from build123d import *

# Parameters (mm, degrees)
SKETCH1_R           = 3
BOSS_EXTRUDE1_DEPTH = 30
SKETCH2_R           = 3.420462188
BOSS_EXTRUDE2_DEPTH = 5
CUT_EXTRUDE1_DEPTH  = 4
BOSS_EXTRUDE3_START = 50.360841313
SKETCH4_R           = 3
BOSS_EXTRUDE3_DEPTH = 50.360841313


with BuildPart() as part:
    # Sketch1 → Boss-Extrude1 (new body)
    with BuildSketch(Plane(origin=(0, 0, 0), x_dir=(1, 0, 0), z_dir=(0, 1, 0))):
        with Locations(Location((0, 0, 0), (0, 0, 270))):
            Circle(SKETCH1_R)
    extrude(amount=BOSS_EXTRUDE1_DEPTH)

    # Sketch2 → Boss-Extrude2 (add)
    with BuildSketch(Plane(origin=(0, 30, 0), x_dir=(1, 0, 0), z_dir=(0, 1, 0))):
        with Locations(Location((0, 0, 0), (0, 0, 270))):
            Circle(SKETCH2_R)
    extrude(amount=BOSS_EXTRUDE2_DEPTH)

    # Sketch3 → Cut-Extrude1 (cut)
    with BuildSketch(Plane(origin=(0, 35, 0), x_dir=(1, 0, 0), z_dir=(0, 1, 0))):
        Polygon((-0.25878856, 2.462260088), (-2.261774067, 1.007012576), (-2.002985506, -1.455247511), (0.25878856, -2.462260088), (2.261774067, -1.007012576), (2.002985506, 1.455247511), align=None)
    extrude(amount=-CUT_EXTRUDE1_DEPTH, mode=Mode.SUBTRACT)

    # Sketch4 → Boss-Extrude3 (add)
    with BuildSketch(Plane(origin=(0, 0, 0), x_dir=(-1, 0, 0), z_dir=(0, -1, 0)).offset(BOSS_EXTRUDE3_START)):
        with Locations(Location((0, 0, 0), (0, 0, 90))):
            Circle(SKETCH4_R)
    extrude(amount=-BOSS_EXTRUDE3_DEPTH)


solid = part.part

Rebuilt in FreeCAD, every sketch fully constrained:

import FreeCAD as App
import Part
import Sketcher


def add_polygon(sketch, points):
    """Adds a closed chain of lines whose ends are joined by coincident constraints."""
    first, n = sketch.GeometryCount, len(points)
    for a, b in zip(points, points[1:] + points[:1]):
        sketch.addGeometry(Part.LineSegment(App.Vector(*a, 0), App.Vector(*b, 0)), False)
    for i in range(n):
        sketch.addConstraint(Sketcher.Constraint("Coincident", first + i, 2, first + (i + 1) % n, 1))

doc = App.newDocument("Part")
body = doc.addObject("PartDesign::Body", "Body")

# Sketch on XZ plane
sketch1 = body.newObject("Sketcher::SketchObject", "Sketch")
sketch1.AttachmentSupport = (doc.getObject("XZ_Plane"), [""])
sketch1.MapMode = "FlatFace"
sketch1.addGeometry(Part.Circle(App.Vector(0, 0, 0), App.Vector(0, 0, 1), 3), False)
sketch1.addConstraint([
    Sketcher.Constraint("Coincident", 0, 3, -1, 1),
    Sketcher.Constraint("Diameter", 0, 6.0),
])
pad1 = body.newObject("PartDesign::Pad", "Pad")
pad1.Profile = sketch1
pad1.Length = 30
pad1.Reversed = True

# Sketch on XZ plane
sketch2 = body.newObject("Sketcher::SketchObject", "Sketch001")
sketch2.AttachmentSupport = (doc.getObject("XZ_Plane"), [""])
sketch2.MapMode = "FlatFace"
sketch2.AttachmentOffset = App.Placement(App.Vector(0, 0, -30), App.Rotation())
sketch2.addGeometry(Part.Circle(App.Vector(0, 0, 0), App.Vector(0, 0, 1), 3.4), False)
sketch2.addConstraint([
    Sketcher.Constraint("Coincident", 0, 3, -1, 1),
    Sketcher.Constraint("Diameter", 0, 6.840924),
])
pad2 = body.newObject("PartDesign::Pad", "Pad001")
pad2.Profile = sketch2
pad2.Length = 5
pad2.Reversed = True

# Sketch on XZ plane
sketch3 = body.newObject("Sketcher::SketchObject", "Sketch002")
sketch3.AttachmentSupport = (doc.getObject("XZ_Plane"), [""])
sketch3.MapMode = "FlatFace"
sketch3.AttachmentOffset = App.Placement(App.Vector(0, 0, -35), App.Rotation())
add_polygon(sketch3, [(-0.3, -2.5), (-2.3, -1), (-2, 1.5), (0.3, 2.5), (2.3, 1), (2, -1.5)])  # lines 0-5
sketch3.addConstraint([
    Sketcher.Constraint("Symmetric", 0, 2, 3, 2, -1, 1),
    Sketcher.Constraint("Symmetric", 1, 2, 4, 2, -1, 1),
    Sketcher.Constraint("Symmetric", 2, 2, 5, 2, -1, 1),
    Sketcher.Constraint("Equal", 0, 1),
    Sketcher.Constraint("Equal", 1, 2),
    Sketcher.Constraint("DistanceX", -1, 1, 2, 2, 0.258789),
    Sketcher.Constraint("DistanceY", -1, 1, 2, 2, 2.46226),
    Sketcher.Constraint("DistanceX", 0, 2, 1, 2, 0.258789),
    Sketcher.Constraint("DistanceY", 0, 2, 1, 2, 2.46226),
])
pocket1 = body.newObject("PartDesign::Pocket", "Pocket")
pocket1.Profile = sketch3
pocket1.Length = 4
pocket1.Reversed = True

# Sketch on XZ plane
sketch4 = body.newObject("Sketcher::SketchObject", "Sketch003")
sketch4.AttachmentSupport = (doc.getObject("XZ_Plane"), [""])
sketch4.MapMode = "FlatFace"
sketch4.AttachmentOffset = App.Placement(App.Vector(0, 0, 50.360841), App.Rotation())
sketch4.addGeometry(Part.Circle(App.Vector(0, 0, 0), App.Vector(0, 0, 1), 3), False)
sketch4.addConstraint([
    Sketcher.Constraint("Coincident", 0, 3, -1, 1),
    Sketcher.Constraint("Diameter", 0, 6.0),
])
pad3 = body.newObject("PartDesign::Pad", "Pad002")
pad3.Profile = sketch4
pad3.Length = 50.360841
pad3.Reversed = True

doc.recompute()
